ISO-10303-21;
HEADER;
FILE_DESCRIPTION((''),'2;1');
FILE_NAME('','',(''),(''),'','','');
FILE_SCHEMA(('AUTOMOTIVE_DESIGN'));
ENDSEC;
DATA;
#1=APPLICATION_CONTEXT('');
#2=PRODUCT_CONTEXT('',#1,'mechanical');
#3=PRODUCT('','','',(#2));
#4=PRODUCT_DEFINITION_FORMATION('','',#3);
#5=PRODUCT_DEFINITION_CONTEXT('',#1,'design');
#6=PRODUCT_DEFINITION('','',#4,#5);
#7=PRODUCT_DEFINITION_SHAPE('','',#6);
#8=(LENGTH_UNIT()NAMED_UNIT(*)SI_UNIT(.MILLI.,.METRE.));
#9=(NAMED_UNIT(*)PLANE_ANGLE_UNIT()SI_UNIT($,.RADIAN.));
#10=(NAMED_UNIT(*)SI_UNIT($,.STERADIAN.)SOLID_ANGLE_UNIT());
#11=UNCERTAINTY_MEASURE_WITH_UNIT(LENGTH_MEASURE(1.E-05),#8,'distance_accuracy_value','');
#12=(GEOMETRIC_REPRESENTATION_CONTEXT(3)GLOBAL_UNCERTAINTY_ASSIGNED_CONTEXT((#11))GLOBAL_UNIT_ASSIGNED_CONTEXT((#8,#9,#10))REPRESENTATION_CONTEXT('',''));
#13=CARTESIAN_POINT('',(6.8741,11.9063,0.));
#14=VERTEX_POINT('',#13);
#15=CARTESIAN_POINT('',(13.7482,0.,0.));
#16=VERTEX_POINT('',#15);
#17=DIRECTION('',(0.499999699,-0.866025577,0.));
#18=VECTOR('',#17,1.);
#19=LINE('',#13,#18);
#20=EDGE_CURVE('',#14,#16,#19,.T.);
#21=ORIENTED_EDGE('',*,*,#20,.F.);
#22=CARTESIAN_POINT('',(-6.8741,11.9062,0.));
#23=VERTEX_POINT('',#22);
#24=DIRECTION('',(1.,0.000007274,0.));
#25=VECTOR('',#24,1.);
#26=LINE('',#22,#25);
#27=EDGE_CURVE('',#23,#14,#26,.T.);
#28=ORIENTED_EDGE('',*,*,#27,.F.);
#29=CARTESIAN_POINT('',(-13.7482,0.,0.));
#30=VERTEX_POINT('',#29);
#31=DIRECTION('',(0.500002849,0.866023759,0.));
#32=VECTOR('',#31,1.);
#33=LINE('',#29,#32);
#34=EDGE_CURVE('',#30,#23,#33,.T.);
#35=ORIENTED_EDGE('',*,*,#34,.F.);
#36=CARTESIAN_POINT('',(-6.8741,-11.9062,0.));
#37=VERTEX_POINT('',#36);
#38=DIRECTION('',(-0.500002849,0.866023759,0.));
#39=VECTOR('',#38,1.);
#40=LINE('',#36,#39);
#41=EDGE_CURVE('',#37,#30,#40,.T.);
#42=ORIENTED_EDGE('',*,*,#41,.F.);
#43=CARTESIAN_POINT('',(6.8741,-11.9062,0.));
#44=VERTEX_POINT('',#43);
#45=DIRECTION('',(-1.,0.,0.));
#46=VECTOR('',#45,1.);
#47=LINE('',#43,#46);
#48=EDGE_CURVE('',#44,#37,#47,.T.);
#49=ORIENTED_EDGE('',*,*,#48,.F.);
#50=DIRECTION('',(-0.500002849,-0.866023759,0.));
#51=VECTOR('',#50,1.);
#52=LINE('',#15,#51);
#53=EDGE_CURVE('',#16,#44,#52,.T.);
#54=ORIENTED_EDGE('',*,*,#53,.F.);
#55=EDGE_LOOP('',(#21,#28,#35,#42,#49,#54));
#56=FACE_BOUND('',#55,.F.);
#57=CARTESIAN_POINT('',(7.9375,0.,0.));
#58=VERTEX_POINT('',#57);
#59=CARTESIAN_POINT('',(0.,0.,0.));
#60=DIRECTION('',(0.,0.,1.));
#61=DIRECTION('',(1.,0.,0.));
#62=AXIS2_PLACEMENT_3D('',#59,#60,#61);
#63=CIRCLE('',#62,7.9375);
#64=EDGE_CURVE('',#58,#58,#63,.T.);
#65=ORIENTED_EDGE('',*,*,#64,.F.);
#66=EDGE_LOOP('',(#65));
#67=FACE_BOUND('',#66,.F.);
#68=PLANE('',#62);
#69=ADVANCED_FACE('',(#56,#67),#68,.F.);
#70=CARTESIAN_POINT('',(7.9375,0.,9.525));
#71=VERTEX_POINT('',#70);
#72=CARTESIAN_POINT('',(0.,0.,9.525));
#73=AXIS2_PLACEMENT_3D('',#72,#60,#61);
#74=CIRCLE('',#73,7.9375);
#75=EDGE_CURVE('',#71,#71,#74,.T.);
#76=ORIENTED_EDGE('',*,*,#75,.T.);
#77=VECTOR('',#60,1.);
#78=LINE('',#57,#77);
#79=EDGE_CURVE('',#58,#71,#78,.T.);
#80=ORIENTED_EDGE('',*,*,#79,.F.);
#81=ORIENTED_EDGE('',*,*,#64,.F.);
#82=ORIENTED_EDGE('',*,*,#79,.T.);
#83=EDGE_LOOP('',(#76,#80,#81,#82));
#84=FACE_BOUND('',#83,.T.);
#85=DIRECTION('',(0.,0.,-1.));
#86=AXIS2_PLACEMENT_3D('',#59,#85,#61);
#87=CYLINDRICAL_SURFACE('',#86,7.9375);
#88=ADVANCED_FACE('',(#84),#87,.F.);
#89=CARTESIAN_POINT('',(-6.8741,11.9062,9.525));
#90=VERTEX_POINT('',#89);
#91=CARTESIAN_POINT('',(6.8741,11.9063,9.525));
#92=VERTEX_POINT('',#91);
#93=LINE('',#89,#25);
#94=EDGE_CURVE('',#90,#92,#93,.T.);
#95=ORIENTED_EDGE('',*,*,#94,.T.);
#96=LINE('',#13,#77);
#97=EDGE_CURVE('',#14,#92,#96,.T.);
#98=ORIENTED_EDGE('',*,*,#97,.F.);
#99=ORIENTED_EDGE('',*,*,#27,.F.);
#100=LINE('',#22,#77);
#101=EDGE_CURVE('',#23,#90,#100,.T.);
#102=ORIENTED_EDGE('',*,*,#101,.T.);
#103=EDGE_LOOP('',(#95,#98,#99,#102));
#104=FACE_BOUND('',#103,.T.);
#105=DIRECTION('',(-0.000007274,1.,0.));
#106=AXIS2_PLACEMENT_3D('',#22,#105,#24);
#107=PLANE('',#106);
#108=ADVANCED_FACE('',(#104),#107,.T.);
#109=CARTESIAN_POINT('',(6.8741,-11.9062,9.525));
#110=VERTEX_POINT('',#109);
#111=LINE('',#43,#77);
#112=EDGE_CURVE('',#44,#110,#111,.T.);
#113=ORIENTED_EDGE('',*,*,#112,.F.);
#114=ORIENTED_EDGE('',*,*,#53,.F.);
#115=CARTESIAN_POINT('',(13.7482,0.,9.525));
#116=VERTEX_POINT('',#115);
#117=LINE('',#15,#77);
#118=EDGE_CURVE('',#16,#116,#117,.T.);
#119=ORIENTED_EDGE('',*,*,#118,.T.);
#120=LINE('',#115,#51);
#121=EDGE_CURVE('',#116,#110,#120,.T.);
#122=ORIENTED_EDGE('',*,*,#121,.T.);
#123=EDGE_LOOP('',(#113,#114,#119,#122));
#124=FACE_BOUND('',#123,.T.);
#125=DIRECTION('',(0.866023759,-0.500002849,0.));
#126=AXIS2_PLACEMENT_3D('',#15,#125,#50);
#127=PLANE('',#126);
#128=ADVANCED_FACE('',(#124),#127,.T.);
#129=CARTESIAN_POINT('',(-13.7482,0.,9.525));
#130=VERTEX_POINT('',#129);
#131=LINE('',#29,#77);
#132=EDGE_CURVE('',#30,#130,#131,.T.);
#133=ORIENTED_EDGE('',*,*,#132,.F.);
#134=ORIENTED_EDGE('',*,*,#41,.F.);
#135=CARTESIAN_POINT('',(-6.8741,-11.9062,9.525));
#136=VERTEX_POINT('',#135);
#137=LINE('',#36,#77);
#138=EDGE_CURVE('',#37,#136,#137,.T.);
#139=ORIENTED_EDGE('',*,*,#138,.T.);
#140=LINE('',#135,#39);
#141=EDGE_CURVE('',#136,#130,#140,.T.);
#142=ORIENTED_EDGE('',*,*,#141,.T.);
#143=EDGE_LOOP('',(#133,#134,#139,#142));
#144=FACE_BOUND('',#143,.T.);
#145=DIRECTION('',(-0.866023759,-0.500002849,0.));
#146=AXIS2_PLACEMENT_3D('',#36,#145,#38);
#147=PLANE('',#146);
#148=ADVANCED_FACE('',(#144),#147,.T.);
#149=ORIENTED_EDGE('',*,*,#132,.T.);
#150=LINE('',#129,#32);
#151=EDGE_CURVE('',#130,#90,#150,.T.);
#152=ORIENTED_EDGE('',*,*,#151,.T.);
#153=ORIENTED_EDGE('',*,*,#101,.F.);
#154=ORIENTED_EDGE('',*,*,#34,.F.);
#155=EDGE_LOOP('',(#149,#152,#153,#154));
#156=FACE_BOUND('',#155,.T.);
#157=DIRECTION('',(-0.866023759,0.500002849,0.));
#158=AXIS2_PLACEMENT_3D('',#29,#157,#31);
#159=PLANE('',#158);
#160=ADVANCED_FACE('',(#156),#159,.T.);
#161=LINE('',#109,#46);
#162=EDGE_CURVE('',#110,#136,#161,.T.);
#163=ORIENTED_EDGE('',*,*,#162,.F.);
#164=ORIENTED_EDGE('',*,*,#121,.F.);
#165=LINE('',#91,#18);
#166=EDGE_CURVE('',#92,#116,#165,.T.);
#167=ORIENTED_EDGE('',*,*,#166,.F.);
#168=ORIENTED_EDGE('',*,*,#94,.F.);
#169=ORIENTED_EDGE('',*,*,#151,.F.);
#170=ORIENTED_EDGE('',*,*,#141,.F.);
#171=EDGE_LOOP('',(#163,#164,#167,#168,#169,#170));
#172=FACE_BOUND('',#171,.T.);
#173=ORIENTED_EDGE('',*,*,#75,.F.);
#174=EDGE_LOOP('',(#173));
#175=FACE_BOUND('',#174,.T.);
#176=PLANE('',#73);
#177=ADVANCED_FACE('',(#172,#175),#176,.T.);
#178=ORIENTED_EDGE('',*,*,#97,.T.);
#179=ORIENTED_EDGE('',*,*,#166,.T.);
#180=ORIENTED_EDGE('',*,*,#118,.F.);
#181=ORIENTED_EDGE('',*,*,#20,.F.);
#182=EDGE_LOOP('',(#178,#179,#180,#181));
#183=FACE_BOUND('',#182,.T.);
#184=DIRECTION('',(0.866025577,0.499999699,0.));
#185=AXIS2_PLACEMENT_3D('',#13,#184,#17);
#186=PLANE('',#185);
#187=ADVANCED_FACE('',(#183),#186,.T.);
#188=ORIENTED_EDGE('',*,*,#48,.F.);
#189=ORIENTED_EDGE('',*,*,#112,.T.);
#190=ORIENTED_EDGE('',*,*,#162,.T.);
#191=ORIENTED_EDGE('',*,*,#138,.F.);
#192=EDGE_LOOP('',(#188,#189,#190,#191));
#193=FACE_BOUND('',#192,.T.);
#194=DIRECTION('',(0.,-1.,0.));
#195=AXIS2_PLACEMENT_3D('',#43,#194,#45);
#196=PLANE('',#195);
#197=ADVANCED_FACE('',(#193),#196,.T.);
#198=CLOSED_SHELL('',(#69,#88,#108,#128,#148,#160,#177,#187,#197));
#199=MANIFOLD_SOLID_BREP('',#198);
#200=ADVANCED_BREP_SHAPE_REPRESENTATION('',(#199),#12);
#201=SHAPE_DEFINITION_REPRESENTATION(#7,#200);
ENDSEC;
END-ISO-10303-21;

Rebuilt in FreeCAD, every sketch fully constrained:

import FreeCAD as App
import Part
import Sketcher
from FreeCAD import Vector
Q = App.Units.Quantity


def add_polygon(sketch, points):
    """Adds a closed chain of lines whose ends are joined by coincident constraints."""
    first, n = sketch.GeometryCount, len(points)
    for a, b in zip(points, points[1:] + points[:1]):
        sketch.addGeometry(Part.LineSegment(App.Vector(*a, 0), App.Vector(*b, 0)), False)
    for i in range(n):
        sketch.addConstraint(Sketcher.Constraint("Coincident", first + i, 2, first + (i + 1) % n, 1))

doc = App.newDocument("Part")
body = doc.addObject("PartDesign::Body", "Body")

# Sketch on XY plane
sketch1 = doc.addObject("Sketcher::SketchObject", "Sketch")
body.addObject(sketch1)
sketch1.AttachmentSupport = (doc.XY_Plane, [""])
sketch1.MapMode = "FlatFace"
add_polygon(sketch1, [(7, -12), (14, 0), (7, 12), (-7, 12), (-14, 0), (-7, -12)])  # lines 0-5
sketch1.addGeometry(Part.Circle(Vector(0, 0, 0), Vector(0, 0, 1), 8), False)  # 6
sketch1.addConstraint(Sketcher.Constraint("Horizontal", 2))
sketch1.addConstraint(Sketcher.Constraint("Horizontal", 5))
sketch1.addConstraint(Sketcher.Constraint("Coincident", 6, 3, -1, 1))
sketch1.addConstraint(Sketcher.Constraint("Symmetric", 0, 2, 3, 2, -1, 1))
sketch1.addConstraint(Sketcher.Constraint("Symmetric", 1, 2, 4, 2, -1, 1))
sketch1.addConstraint(Sketcher.Constraint("PointOnObject", 0, 2, -1))
sketch1.addConstraint(Sketcher.Constraint("Parallel", 0, 3))
sketch1.addConstraint(Sketcher.Constraint("Vertical", 2, 2, 4, 2))
sketch1.addConstraint(Sketcher.Constraint("Diameter", 6, Q("0.625 in")))
sketch1.addConstraint(Sketcher.Constraint("Angle", 0, Q("59.9998 deg")))
sketch1.addConstraint(Sketcher.Constraint("DistanceY", 4, 2, 2, 2, Q("0.9375 in")))
sketch1.addConstraint(Sketcher.Constraint("DistanceX", 2, 2, 2, 1, 13.7482))
pad1 = doc.addObject("PartDesign::Pad", "Pad")
body.addObject(pad1)
pad1.Profile = sketch1
pad1.Length = Q("0.375 in")

doc.recompute()
